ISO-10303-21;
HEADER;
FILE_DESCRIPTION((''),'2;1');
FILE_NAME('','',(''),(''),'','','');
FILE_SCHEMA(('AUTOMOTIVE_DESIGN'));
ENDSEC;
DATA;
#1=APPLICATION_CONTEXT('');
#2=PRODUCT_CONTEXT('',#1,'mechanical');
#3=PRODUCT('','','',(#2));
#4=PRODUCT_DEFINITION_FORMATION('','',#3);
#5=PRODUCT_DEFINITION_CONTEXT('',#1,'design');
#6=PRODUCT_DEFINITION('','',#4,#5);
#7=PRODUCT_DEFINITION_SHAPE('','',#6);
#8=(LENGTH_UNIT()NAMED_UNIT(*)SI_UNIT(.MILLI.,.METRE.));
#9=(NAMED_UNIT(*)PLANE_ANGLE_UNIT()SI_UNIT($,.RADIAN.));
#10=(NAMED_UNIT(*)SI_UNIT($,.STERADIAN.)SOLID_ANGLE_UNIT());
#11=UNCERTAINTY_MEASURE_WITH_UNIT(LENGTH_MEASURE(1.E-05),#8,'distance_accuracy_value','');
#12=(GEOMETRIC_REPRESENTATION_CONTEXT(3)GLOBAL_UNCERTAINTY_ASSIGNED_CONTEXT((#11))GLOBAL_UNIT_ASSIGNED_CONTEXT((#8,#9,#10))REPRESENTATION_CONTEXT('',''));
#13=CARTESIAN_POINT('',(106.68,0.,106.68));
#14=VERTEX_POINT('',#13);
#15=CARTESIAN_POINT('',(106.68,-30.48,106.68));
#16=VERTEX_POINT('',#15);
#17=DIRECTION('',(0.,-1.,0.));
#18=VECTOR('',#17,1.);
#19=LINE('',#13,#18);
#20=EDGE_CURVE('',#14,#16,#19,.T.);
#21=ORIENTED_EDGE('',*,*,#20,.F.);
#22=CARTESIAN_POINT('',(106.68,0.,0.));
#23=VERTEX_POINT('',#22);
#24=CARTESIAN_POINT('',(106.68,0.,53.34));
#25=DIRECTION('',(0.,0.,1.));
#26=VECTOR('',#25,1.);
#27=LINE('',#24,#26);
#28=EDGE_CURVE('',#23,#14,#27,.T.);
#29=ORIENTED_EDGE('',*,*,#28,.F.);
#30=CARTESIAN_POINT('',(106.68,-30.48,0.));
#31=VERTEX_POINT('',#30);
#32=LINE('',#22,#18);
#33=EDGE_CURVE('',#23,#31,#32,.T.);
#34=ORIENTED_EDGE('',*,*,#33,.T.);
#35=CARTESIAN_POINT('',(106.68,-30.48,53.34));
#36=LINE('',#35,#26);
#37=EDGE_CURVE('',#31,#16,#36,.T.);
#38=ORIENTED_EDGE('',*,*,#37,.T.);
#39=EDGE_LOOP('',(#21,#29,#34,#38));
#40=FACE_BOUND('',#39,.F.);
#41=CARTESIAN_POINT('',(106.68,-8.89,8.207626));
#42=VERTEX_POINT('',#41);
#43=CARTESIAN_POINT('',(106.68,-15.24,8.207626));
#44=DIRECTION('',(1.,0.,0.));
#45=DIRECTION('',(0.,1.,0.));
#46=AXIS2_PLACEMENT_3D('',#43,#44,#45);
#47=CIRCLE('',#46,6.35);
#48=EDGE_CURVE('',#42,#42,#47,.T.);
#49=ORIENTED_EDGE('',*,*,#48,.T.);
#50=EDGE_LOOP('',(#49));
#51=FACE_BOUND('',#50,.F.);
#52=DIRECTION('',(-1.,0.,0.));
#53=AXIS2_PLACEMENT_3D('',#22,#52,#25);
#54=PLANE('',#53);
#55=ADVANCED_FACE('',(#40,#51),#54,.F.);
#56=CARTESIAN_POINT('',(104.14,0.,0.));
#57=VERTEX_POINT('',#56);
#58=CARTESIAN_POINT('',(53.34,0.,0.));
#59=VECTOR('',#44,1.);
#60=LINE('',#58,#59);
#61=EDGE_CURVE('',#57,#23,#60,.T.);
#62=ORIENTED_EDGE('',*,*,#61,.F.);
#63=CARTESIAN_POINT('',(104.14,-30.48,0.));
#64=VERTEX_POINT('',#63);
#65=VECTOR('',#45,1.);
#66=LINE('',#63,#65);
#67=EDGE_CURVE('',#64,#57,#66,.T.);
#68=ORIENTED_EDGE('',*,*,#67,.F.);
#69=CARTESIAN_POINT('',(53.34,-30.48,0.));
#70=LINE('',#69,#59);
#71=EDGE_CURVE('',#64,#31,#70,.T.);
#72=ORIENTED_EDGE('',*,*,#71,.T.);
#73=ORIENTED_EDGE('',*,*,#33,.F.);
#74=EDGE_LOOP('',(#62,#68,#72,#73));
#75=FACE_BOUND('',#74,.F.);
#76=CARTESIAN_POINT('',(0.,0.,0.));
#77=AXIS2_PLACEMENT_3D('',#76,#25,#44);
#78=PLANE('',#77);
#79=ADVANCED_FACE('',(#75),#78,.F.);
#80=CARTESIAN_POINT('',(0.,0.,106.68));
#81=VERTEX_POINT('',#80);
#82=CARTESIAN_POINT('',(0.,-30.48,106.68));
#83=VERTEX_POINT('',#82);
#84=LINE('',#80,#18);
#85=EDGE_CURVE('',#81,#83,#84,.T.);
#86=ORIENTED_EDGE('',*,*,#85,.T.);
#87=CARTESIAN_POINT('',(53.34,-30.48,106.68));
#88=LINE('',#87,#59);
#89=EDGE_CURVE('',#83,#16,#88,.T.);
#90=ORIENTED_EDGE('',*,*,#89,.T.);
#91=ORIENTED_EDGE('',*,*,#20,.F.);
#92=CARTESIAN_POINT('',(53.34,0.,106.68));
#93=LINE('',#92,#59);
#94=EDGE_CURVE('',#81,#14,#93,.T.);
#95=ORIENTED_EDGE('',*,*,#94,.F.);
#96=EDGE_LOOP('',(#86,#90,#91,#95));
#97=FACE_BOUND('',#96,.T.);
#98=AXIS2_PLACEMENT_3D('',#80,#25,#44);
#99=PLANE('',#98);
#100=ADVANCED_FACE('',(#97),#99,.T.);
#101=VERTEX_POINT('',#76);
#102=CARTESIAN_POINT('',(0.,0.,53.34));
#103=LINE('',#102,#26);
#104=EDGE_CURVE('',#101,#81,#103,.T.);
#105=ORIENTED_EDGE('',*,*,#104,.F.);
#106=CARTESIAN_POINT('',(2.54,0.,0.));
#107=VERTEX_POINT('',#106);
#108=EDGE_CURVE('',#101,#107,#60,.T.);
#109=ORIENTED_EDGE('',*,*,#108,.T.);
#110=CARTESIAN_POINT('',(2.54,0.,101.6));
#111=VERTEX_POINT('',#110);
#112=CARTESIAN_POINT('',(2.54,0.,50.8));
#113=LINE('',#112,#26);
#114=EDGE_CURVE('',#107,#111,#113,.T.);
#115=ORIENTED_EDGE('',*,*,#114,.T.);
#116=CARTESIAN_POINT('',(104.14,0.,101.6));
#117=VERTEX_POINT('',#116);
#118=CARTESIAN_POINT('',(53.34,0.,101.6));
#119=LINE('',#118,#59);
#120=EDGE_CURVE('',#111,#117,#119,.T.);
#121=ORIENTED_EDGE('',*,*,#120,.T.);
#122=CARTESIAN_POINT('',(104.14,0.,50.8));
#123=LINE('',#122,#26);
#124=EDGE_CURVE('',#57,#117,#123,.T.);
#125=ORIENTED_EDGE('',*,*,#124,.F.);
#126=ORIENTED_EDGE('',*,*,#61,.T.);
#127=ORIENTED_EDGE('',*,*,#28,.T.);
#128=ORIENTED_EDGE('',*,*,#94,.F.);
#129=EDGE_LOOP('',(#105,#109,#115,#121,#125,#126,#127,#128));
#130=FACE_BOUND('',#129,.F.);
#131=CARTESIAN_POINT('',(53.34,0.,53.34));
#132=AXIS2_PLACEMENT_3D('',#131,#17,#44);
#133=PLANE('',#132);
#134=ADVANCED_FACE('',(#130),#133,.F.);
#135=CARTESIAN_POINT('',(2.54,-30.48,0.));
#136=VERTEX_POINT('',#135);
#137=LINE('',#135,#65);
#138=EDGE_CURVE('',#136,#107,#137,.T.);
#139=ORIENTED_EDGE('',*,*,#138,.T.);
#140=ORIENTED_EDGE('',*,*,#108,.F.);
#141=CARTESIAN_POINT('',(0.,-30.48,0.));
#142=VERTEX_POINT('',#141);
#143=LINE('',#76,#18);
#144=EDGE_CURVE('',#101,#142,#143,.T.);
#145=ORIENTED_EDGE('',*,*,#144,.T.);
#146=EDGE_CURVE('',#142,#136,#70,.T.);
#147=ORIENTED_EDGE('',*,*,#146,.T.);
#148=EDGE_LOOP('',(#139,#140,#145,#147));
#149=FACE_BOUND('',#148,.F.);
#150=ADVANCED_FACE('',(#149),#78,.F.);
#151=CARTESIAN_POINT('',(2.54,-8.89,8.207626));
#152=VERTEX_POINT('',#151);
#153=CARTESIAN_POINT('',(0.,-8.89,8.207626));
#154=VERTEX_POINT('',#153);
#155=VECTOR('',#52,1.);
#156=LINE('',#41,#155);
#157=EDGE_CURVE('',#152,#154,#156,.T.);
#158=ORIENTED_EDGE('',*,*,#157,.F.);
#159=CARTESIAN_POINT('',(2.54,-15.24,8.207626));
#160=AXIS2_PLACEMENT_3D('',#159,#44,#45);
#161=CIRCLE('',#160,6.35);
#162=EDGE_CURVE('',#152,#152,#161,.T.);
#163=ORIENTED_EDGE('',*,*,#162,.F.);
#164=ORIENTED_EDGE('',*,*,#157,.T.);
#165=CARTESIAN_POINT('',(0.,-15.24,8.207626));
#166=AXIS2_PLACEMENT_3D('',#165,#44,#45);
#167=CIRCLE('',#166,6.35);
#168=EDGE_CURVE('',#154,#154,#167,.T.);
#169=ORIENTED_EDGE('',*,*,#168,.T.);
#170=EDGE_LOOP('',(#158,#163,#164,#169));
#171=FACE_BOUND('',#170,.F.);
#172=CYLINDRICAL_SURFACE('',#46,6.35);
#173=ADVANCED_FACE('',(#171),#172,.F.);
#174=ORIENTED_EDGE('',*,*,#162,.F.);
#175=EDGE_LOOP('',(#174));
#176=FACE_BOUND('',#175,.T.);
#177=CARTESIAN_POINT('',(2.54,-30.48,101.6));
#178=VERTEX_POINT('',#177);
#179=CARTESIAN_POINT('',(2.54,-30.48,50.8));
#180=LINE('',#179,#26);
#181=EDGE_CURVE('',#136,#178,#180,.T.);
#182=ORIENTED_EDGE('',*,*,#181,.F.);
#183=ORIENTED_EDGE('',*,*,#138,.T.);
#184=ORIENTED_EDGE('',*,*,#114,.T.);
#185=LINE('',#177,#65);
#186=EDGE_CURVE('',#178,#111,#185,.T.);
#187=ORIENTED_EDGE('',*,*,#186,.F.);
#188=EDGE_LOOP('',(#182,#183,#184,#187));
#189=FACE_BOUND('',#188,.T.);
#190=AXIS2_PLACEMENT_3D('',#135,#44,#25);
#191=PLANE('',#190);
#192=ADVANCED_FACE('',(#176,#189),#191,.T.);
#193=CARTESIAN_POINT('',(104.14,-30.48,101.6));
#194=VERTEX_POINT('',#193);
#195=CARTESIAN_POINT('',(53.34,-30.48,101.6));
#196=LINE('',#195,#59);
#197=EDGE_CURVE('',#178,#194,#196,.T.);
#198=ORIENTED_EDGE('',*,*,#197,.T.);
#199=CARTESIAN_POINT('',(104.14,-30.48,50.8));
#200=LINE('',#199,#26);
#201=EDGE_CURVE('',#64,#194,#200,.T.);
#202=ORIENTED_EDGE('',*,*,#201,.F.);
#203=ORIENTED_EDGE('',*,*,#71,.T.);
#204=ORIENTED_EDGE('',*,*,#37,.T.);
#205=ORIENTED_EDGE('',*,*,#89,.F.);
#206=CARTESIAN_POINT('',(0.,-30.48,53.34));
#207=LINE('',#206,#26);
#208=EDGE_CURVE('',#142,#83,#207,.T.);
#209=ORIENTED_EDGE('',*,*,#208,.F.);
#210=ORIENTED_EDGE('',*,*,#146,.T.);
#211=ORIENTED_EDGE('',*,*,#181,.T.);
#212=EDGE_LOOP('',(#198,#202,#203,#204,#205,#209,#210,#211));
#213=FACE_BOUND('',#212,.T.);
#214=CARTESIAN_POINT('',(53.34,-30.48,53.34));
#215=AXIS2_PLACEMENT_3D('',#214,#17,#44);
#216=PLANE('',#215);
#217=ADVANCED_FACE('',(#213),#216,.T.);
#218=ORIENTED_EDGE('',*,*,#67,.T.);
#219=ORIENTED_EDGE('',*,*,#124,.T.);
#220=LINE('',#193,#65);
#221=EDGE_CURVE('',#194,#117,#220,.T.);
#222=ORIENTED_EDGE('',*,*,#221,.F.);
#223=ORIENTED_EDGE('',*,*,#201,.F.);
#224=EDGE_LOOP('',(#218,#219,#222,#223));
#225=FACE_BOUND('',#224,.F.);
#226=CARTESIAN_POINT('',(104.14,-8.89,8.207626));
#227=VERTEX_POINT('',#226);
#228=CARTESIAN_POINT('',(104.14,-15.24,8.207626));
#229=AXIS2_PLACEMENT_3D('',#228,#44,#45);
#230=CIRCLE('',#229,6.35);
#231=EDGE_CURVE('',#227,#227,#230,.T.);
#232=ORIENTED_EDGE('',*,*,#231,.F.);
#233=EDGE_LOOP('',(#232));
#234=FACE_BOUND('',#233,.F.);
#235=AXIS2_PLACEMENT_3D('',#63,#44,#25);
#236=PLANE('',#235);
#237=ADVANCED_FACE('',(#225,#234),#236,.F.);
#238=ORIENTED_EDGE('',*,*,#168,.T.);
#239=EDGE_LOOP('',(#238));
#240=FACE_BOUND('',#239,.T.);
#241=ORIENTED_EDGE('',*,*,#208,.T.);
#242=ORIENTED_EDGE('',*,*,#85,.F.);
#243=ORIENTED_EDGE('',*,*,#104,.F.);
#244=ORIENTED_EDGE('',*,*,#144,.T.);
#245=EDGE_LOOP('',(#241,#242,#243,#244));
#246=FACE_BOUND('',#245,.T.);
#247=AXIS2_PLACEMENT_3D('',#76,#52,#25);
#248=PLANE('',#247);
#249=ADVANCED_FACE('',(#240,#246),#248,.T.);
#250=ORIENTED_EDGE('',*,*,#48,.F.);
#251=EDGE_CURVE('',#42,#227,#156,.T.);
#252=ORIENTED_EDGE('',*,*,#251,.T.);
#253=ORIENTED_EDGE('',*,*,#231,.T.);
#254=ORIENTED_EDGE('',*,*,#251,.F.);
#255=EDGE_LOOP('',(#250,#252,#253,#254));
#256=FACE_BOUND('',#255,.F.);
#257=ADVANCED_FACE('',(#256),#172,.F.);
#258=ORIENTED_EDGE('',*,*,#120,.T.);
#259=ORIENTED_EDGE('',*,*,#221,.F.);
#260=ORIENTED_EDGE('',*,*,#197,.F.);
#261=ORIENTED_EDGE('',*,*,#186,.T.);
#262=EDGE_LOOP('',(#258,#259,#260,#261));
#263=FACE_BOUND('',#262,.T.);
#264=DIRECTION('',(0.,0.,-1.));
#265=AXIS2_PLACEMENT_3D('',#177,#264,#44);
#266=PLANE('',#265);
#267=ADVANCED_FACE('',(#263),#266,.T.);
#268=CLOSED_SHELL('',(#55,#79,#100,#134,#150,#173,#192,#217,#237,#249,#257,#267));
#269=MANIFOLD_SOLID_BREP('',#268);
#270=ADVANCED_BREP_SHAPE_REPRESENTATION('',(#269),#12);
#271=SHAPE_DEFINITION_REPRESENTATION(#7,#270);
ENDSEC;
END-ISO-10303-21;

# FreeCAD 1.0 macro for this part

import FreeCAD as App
import Part
import Sketcher

V = App.Vector
Q = App.Units.Quantity


def add_polygon(sketch, points):
    """Adds a closed chain of lines whose ends are joined by coincident constraints."""
    first, n = sketch.GeometryCount, len(points)
    for a, b in zip(points, points[1:] + points[:1]):
        sketch.addGeometry(Part.LineSegment(App.Vector(*a, 0), App.Vector(*b, 0)), False)
    for i in range(n):
        sketch.addConstraint(Sketcher.Constraint("Coincident", first + i, 2, first + (i + 1) % n, 1))

doc = App.newDocument("Part")
body = doc.addObject("PartDesign::Body", "Body")

sketch1 = body.newObject("Sketcher::SketchObject", "Sketch")
sketch1.AttachmentSupport = (doc.getObject("XZ_Plane"), [""])
sketch1.MapMode = "FlatFace"
add_polygon(sketch1, [(0, 106.68), (0, 0), (106.68, 0), (106.68, 106.68)])
sketch1.addConstraint([
    Sketcher.Constraint("Vertical", 0),
    Sketcher.Constraint("Horizontal", 1),
    Sketcher.Constraint("Vertical", 2),
    Sketcher.Constraint("Horizontal", 3),
    Sketcher.Constraint("Coincident", 0, 2, -1, 1),
    Sketcher.Constraint("Equal", 3, 0),
    Sketcher.Constraint("DistanceX", 1, 1, 1, 2, Q("4.2 in")),
])
pad1 = body.newObject("PartDesign::Pad", "Pad")
pad1.Profile = sketch1
pad1.Length = Q("1.2 in")

sketch2 = body.newObject("Sketcher::SketchObject", "Sketch001")
sketch2.AttachmentSupport = (doc.getObject("XZ_Plane"), [""])
sketch2.MapMode = "FlatFace"
sketch2.AttachmentOffset = App.Placement(V(0, 0, 1.2 * 25.4), App.Rotation())
add_polygon(sketch2, [(2.54, 101.6), (2.54, 0), (104.14, 0), (104.14, 101.6)])
sketch2.addConstraint([
    Sketcher.Constraint("Vertical", 0),
    Sketcher.Constraint("Horizontal", 1),
    Sketcher.Constraint("Vertical", 2),
    Sketcher.Constraint("Horizontal", 3),
    Sketcher.Constraint("PointOnObject", 0, 2, -1),
    Sketcher.Constraint("Equal", 3, 0),
    Sketcher.Constraint("DistanceX", 1, 1, 1, 2, Q("4 in")),
    Sketcher.Constraint("DistanceX", -1, 1, 0, 2, Q("0.1 in")),
])
pocket1 = body.newObject("PartDesign::Pocket", "Pocket")
pocket1.Profile = sketch2
pocket1.Length = Q("1.2 in")

sketch3 = body.newObject("Sketcher::SketchObject", "Sketch002")
sketch3.AttachmentSupport = (doc.getObject("YZ_Plane"), [""])
sketch3.MapMode = "FlatFace"
sketch3.AttachmentOffset = App.Placement(V(0, 0, 4.2 * 25.4), App.Rotation())
sketch3.addGeometry(Part.Circle(V(-15.24, 8.207626, 0), V(0, 0, 1), 6.35), False)
sketch3.addConstraint([
    Sketcher.Constraint("Diameter", 0, Q("0.5 in")),
    Sketcher.Constraint("DistanceX", 0, 3, -1, 1, Q("0.6 in")),
    Sketcher.Constraint("DistanceY", -1, 1, 0, 3, 8.207626),
])
pocket2 = body.newObject("PartDesign::Pocket", "Pocket001")
pocket2.Profile = sketch3
pocket2.Length = Q("4.2 in")

doc.recompute()
